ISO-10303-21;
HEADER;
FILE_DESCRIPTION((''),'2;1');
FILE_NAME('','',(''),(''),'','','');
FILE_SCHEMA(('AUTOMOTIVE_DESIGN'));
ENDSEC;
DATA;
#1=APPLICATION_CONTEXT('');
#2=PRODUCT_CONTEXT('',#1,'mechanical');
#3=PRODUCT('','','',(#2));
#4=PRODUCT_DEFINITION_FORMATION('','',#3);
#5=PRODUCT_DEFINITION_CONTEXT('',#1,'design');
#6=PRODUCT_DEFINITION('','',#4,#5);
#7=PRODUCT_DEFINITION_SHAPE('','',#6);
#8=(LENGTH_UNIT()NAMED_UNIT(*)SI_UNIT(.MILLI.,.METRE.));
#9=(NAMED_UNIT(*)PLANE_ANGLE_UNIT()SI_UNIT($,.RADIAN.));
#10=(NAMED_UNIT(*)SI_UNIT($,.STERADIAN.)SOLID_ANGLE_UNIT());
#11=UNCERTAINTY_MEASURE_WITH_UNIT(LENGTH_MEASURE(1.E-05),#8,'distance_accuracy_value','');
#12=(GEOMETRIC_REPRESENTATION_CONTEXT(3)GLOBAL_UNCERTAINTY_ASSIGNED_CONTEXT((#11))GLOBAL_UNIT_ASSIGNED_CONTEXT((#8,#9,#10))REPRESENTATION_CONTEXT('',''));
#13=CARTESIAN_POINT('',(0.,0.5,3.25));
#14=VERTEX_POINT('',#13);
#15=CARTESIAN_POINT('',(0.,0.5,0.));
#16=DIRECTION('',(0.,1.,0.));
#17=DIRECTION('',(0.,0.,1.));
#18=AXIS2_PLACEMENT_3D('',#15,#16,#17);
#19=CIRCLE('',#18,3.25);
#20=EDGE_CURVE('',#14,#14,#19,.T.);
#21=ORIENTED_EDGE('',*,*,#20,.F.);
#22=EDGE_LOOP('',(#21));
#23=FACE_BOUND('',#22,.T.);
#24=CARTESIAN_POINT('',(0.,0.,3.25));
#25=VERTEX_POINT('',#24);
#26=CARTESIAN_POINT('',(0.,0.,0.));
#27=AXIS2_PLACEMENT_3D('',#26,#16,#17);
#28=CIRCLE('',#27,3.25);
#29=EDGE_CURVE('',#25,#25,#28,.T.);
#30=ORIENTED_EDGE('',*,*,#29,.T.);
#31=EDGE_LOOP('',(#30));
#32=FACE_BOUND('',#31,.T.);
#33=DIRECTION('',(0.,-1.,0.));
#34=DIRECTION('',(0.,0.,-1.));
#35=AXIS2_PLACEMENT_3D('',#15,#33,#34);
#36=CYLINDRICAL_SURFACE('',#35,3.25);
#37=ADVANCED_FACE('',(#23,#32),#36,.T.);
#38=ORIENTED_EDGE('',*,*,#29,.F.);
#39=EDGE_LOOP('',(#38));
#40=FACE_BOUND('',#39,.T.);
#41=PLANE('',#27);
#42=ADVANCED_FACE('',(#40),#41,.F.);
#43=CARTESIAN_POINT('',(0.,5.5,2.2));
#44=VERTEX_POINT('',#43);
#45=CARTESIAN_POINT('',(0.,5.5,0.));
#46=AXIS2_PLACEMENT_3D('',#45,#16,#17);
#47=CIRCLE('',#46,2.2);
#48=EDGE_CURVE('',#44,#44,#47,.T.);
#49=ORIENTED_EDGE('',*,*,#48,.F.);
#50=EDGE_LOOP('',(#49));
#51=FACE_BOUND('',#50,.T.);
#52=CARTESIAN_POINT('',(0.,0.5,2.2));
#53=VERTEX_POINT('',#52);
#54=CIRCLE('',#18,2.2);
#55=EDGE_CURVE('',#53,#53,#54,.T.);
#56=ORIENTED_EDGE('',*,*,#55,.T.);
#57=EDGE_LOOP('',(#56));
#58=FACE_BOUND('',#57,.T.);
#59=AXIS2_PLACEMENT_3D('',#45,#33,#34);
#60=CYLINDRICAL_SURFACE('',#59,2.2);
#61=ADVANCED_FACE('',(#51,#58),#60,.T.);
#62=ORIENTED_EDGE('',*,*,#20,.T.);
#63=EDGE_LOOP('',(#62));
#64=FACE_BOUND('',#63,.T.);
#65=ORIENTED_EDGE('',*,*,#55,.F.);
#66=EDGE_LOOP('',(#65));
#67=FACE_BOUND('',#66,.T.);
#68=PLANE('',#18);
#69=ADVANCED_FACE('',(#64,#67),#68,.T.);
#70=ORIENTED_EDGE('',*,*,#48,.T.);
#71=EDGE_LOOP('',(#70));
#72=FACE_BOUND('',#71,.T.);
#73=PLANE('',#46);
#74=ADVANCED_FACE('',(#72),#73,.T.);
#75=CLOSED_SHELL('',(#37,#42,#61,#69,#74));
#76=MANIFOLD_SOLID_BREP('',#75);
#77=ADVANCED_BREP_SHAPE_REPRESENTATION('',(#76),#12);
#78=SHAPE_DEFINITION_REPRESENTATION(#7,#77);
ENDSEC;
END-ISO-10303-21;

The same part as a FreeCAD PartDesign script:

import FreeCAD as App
import Part
import Sketcher
from FreeCAD import Vector
Q = App.Units.Quantity

doc = App.newDocument("Part")
body = doc.addObject("PartDesign::Body", "Body")

sketch1 = body.newObject("Sketcher::SketchObject", "Sketch")
sketch1.AttachmentSupport = (doc.getObject("XZ_Plane"), [""])
sketch1.MapMode = "FlatFace"
sketch1.addGeometry(Part.Circle(Vector(0, 0, 0), Vector(0, 0, 1), 3.2), False)
sketch1.addConstraint(Sketcher.Constraint("Coincident", 0, 3, -1, 1))
sketch1.addConstraint(Sketcher.Constraint("Diameter", 0, Q("6.5 mm")))
pad1 = body.newObject("PartDesign::Pad", "Pad")
pad1.Profile = sketch1
pad1.Length = 0.5
pad1.Reversed = True

sketch2 = body.newObject("Sketcher::SketchObject", "Sketch001")
sketch2.AttachmentSupport = (doc.getObject("XZ_Plane"), [""])
sketch2.MapMode = "FlatFace"
sketch2.AttachmentOffset = App.Placement(Vector(0, 0, -0.5), App.Rotation())
sketch2.addGeometry(Part.Circle(Vector(0, 0, 0), Vector(0, 0, 1), 2.2), False)
sketch2.addConstraint(Sketcher.Constraint("Coincident", 0, 3, -1, 1))
sketch2.addConstraint(Sketcher.Constraint("Diameter", 0, Q("4.4 mm")))
pad2 = body.newObject("PartDesign::Pad", "Pad001")
pad2.Profile = sketch2
pad2.Length = 5
pad2.Reversed = True

doc.recompute()
